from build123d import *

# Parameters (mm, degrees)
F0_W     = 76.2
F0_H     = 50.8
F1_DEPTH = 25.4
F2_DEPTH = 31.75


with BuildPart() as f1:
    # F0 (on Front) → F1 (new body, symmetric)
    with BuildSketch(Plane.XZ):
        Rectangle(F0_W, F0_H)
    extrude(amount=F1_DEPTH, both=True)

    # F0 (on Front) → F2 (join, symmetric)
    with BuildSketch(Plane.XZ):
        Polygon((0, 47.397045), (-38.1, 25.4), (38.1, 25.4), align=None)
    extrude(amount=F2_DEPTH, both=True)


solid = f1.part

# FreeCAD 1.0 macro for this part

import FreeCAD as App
import Part
import Sketcher
from FreeCAD import Vector
Q = App.Units.Quantity

doc = App.newDocument("Part")
body = doc.addObject("PartDesign::Body", "Body")

sketch1 = body.newObject("Sketcher::SketchObject", "Sketch")
sketch1.AttachmentSupport = (doc.getObject("XZ_Plane"), [""])
sketch1.MapMode = "FlatFace"
sketch1.addGeometry([
    Part.LineSegment(Vector(-38, 25, 0), Vector(-38, -25, 0)),
    Part.LineSegment(Vector(-38, -25, 0), Vector(38, -25, 0)),
    Part.LineSegment(Vector(38, -25, 0), Vector(38, 25, 0)),
    Part.LineSegment(Vector(38, 25, 0), Vector(-38, 25, 0)),
], False)
sketch1.addConstraint([
    Sketcher.Constraint("Coincident", 0, 2, 1, 1),
    Sketcher.Constraint("Coincident", 1, 2, 2, 1),
    Sketcher.Constraint("Coincident", 2, 2, 3, 1),
    Sketcher.Constraint("Coincident", 3, 2, 0, 1),
    Sketcher.Constraint("Vertical", 0),
    Sketcher.Constraint("Horizontal", 1),
    Sketcher.Constraint("Vertical", 2),
    Sketcher.Constraint("Horizontal", 3),
    Sketcher.Constraint("Symmetric", 0, 2, 2, 2, -1, 1),
    Sketcher.Constraint("DistanceX", 1, 1, 1, 2, Q("3 in")),
    Sketcher.Constraint("DistanceY", 0, 2, 0, 1, Q("2 in")),
])
pad1 = body.newObject("PartDesign::Pad", "Pad")
pad1.Profile = sketch1
pad1.Length = Q("2 in")
pad1.Midplane = True

sketch2 = body.newObject("Sketcher::SketchObject", "Sketch001")
sketch2.AttachmentSupport = (doc.getObject("XZ_Plane"), [""])
sketch2.MapMode = "FlatFace"
sketch2.addGeometry([
    Part.LineSegment(Vector(0, 47, 0), Vector(-38, 25, 0)),
    Part.LineSegment(Vector(-38, 25, 0), Vector(38, 25, 0)),
    Part.LineSegment(Vector(38, 25, 0), Vector(0, 47, 0)),
], False)
sketch2.addConstraint([
    Sketcher.Constraint("Coincident", 0, 2, 1, 1),
    Sketcher.Constraint("Coincident", 1, 2, 2, 1),
    Sketcher.Constraint("Coincident", 2, 2, 0, 1),
    Sketcher.Constraint("Horizontal", 1),
    Sketcher.Constraint("PointOnObject", 2, 2, -2),
    Sketcher.Constraint("Equal", 0, 2),
    Sketcher.Constraint("DistanceX", 1, 1, 1, 2, Q("3 in")),
    Sketcher.Constraint("DistanceY", -1, 1, 0, 2, Q("1 in")),
    Sketcher.Constraint("Angle", 0, Q("-150 deg")),
])
pad2 = body.newObject("PartDesign::Pad", "Pad001")
pad2.Profile = sketch2
pad2.Length = Q("2.5 in")
pad2.Midplane = True

doc.recompute()
